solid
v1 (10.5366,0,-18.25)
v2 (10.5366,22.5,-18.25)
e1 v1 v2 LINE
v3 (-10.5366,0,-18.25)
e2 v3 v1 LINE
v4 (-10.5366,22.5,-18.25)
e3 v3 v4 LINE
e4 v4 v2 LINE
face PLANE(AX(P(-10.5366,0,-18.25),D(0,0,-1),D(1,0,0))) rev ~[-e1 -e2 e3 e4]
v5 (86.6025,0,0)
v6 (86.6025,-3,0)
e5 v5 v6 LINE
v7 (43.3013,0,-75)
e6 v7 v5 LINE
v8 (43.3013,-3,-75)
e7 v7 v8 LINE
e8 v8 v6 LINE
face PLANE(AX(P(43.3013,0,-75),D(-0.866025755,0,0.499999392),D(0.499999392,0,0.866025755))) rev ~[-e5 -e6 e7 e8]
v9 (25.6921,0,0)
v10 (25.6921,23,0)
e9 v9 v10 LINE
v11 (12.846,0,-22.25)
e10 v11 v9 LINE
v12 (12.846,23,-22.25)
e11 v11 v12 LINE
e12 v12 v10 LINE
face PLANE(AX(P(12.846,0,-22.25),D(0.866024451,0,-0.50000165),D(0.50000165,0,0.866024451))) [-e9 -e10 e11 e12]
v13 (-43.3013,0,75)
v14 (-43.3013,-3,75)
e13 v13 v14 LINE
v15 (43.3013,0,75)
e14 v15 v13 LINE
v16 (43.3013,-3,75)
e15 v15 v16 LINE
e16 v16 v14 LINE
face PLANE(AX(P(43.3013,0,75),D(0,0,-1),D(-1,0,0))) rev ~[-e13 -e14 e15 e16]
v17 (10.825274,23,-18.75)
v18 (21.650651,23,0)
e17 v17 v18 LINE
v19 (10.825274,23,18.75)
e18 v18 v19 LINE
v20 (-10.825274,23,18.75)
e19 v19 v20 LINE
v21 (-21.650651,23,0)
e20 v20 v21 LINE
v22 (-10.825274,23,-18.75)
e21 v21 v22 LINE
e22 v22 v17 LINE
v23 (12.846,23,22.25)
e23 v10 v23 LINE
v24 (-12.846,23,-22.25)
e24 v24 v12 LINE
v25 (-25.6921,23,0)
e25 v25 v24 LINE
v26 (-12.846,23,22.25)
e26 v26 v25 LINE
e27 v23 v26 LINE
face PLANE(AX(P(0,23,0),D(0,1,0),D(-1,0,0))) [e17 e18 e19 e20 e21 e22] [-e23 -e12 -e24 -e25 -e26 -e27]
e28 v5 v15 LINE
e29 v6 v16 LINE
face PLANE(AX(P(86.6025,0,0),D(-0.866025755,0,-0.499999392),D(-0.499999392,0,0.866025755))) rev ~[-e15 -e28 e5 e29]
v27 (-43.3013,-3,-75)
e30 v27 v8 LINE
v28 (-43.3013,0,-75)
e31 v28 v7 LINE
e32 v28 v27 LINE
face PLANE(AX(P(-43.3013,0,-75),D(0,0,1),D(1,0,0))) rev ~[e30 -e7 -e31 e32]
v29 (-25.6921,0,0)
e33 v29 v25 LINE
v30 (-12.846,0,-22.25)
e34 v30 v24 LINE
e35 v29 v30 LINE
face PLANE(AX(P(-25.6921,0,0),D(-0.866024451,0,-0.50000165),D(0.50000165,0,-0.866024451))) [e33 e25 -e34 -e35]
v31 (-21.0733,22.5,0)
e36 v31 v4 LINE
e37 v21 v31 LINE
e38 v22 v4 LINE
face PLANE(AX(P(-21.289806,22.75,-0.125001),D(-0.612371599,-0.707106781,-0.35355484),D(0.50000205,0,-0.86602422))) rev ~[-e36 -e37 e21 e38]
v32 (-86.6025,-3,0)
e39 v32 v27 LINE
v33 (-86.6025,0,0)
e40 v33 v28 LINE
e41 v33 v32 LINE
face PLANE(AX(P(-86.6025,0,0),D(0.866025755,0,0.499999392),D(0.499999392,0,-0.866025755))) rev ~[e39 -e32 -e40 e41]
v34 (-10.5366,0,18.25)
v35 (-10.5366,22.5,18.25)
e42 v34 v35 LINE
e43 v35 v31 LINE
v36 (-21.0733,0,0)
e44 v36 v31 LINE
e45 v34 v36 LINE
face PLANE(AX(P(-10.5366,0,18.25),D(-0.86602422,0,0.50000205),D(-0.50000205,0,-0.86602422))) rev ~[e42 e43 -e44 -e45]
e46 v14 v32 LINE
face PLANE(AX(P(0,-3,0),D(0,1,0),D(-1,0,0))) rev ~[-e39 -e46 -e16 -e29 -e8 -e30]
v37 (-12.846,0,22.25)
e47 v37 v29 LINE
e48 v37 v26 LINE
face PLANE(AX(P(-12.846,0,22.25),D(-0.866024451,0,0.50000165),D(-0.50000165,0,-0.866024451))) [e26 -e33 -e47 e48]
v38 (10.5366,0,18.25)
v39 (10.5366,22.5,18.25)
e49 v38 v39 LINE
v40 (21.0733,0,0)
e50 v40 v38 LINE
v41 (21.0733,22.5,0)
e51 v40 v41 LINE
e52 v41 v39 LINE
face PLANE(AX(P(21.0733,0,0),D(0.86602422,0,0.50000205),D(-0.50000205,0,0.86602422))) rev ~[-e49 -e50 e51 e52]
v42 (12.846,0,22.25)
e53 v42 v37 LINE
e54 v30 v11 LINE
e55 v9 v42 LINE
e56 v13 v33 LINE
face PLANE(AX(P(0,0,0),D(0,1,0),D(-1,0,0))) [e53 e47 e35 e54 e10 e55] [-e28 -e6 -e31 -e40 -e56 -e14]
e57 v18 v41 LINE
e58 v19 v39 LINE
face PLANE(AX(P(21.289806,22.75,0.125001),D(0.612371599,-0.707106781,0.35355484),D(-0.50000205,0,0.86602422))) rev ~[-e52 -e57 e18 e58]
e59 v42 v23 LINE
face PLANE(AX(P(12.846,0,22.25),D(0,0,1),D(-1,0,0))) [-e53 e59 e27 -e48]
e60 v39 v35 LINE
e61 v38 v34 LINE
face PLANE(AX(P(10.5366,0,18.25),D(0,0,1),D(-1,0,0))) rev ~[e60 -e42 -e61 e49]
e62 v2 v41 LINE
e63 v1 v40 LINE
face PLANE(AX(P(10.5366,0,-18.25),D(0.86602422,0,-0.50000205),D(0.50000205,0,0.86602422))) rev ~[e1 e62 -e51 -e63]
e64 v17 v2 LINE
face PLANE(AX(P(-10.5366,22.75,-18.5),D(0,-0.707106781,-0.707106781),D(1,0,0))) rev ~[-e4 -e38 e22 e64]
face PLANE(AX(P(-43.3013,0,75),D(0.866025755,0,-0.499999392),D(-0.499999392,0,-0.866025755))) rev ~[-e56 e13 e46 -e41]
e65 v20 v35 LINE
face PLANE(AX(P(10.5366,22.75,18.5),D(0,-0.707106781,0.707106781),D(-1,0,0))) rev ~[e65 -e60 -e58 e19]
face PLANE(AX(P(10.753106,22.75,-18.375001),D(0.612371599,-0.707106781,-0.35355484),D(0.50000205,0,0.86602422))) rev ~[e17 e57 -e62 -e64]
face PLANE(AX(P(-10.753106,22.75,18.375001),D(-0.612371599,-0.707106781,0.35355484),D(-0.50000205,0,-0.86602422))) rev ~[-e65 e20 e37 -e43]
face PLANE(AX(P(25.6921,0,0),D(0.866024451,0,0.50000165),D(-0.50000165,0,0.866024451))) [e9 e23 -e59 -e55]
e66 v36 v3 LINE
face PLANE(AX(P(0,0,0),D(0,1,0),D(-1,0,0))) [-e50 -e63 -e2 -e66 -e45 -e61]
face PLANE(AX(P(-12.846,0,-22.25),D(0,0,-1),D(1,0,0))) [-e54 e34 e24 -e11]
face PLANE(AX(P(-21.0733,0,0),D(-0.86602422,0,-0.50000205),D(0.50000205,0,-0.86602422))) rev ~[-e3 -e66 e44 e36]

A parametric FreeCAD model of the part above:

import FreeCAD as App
import Part
import Sketcher
Q = App.Units.Quantity


def edges_at(feature, points):
    """Names of the edges that pass closest to the given points."""
    edges = feature.Shape.Edges
    near = lambda p: min(range(len(edges)), key=lambda i: edges[i].distToShape(Part.Vertex(*p))[0])
    return sorted({f"Edge{near(p) + 1}" for p in points})

doc = App.newDocument("Part")
body = doc.addObject("PartDesign::Body", "Body")

sketch1 = body.newObject("Sketcher::SketchObject", "Sketch")
sketch1.AttachmentSupport = (doc.getObject("XZ_Plane"), [""])
sketch1.MapMode = "FlatFace"
sketch1.addGeometry([
    Part.LineSegment(App.Vector(-13, -22, 0), App.Vector(-26, 0, 0)),
    Part.LineSegment(App.Vector(-26, 0, 0), App.Vector(-13, 22, 0)),
    Part.LineSegment(App.Vector(-13, 22, 0), App.Vector(13, 22, 0)),
    Part.LineSegment(App.Vector(13, 22, 0), App.Vector(26, 0, 0)),
    Part.LineSegment(App.Vector(26, 0, 0), App.Vector(13, -22, 0)),
    Part.LineSegment(App.Vector(13, -22, 0), App.Vector(-13, -22, 0)),
    Part.LineSegment(App.Vector(-11, 18, 0), App.Vector(-21, 0, 0)),
    Part.LineSegment(App.Vector(-21, 0, 0), App.Vector(-11, -18, 0)),
    Part.LineSegment(App.Vector(-11, -18, 0), App.Vector(11, -18, 0)),
    Part.LineSegment(App.Vector(11, -18, 0), App.Vector(21, 0, 0)),
    Part.LineSegment(App.Vector(21, 0, 0), App.Vector(11, 18, 0)),
    Part.LineSegment(App.Vector(11, 18, 0), App.Vector(-11, 18, 0)),
], False)
sketch1.addConstraint([
    Sketcher.Constraint("Coincident", 0, 2, 1, 1),
    Sketcher.Constraint("Coincident", 1, 2, 2, 1),
    Sketcher.Constraint("Coincident", 2, 2, 3, 1),
    Sketcher.Constraint("Coincident", 3, 2, 4, 1),
    Sketcher.Constraint("Coincident", 4, 2, 5, 1),
    Sketcher.Constraint("Coincident", 5, 2, 0, 1),
    Sketcher.Constraint("Coincident", 6, 2, 7, 1),
    Sketcher.Constraint("Coincident", 7, 2, 8, 1),
    Sketcher.Constraint("Coincident", 8, 2, 9, 1),
    Sketcher.Constraint("Coincident", 9, 2, 10, 1),
    Sketcher.Constraint("Coincident", 10, 2, 11, 1),
    Sketcher.Constraint("Coincident", 11, 2, 6, 1),
    Sketcher.Constraint("Horizontal", 2),
    Sketcher.Constraint("Horizontal", 5),
    Sketcher.Constraint("Horizontal", 8),
    Sketcher.Constraint("Horizontal", 11),
    Sketcher.Constraint("Symmetric", 0, 2, 3, 2, -1, 1),
    Sketcher.Constraint("Symmetric", 1, 2, 4, 2, -1, 1),
    Sketcher.Constraint("Symmetric", 6, 2, 9, 2, -1, 1),
    Sketcher.Constraint("Symmetric", 7, 2, 10, 2, -1, 1),
    Sketcher.Constraint("PointOnObject", 0, 2, -1),
    Sketcher.Constraint("PointOnObject", 6, 2, -1),
    Sketcher.Constraint("Parallel", 0, 3),
    Sketcher.Constraint("Parallel", 4, 6),
    Sketcher.Constraint("Parallel", 3, 7),
    Sketcher.Constraint("Parallel", 6, 9),
    Sketcher.Constraint("Vertical", 2, 2, 4, 2),
    Sketcher.Constraint("DistanceY", 5, 2, 7, 2, Q("4 mm")),
    Sketcher.Constraint("Angle", 0, Q("120 deg")),
    Sketcher.Constraint("DistanceY", 4, 2, 2, 2, Q("44.5 mm")),
    Sketcher.Constraint("DistanceX", 2, 1, 2, 2, Q("25.692 mm")),
    Sketcher.Constraint("DistanceX", 6, 2, 8, 2, Q("31.61 mm")),
])
pad1 = body.newObject("PartDesign::Pad", "Pad")
pad1.Profile = sketch1
pad1.Length = 23
pad1.Reversed = True

sketch2 = body.newObject("Sketcher::SketchObject", "Sketch001")
sketch2.AttachmentSupport = (doc.getObject("XZ_Plane"), [""])
sketch2.MapMode = "FlatFace"
sketch2.addGeometry([
    Part.LineSegment(App.Vector(-43, -75, 0), App.Vector(-87, 0, 0)),
    Part.LineSegment(App.Vector(-87, 0, 0), App.Vector(-43, 75, 0)),
    Part.LineSegment(App.Vector(-43, 75, 0), App.Vector(43, 75, 0)),
    Part.LineSegment(App.Vector(43, 75, 0), App.Vector(87, 0, 0)),
    Part.LineSegment(App.Vector(87, 0, 0), App.Vector(43, -75, 0)),
    Part.LineSegment(App.Vector(43, -75, 0), App.Vector(-43, -75, 0)),
], False)
sketch2.addConstraint([
    Sketcher.Constraint("Coincident", 0, 2, 1, 1),
    Sketcher.Constraint("Coincident", 1, 2, 2, 1),
    Sketcher.Constraint("Coincident", 2, 2, 3, 1),
    Sketcher.Constraint("Coincident", 3, 2, 4, 1),
    Sketcher.Constraint("Coincident", 4, 2, 5, 1),
    Sketcher.Constraint("Coincident", 5, 2, 0, 1),
    Sketcher.Constraint("Horizontal", 2),
    Sketcher.Constraint("Horizontal", 5),
    Sketcher.Constraint("Symmetric", 0, 2, 3, 2, -1, 1),
    Sketcher.Constraint("Symmetric", 1, 2, 4, 2, -1, 1),
    Sketcher.Constraint("PointOnObject", 0, 2, -1),
    Sketcher.Constraint("Parallel", 0, 3),
    Sketcher.Constraint("Vertical", 2, 2, 4, 2),
    Sketcher.Constraint("DistanceY", 4, 2, 2, 2, Q("150 mm")),
    Sketcher.Constraint("Angle", 0, Q("120 deg")),
    Sketcher.Constraint("DistanceX", 2, 1, 2, 2, Q("86.6026 mm")),
])
pad2 = body.newObject("PartDesign::Pad", "Pad001")
pad2.Profile = sketch2
pad2.Length = 3
doc.recompute()

chamfer = body.newObject("PartDesign::Chamfer", "Chamfer")
chamfer.Base = (pad2, edges_at(pad2, [
    (0, 23, 18.25),
    (-15.805, 23, 9.125),
    (-15.805, 23, -9.125),
    (0, 23, -18.25),
    (15.805, 23, -9.125),
    (15.805, 23, 9.125),
]))
chamfer.Size = 0.5

doc.recompute()
